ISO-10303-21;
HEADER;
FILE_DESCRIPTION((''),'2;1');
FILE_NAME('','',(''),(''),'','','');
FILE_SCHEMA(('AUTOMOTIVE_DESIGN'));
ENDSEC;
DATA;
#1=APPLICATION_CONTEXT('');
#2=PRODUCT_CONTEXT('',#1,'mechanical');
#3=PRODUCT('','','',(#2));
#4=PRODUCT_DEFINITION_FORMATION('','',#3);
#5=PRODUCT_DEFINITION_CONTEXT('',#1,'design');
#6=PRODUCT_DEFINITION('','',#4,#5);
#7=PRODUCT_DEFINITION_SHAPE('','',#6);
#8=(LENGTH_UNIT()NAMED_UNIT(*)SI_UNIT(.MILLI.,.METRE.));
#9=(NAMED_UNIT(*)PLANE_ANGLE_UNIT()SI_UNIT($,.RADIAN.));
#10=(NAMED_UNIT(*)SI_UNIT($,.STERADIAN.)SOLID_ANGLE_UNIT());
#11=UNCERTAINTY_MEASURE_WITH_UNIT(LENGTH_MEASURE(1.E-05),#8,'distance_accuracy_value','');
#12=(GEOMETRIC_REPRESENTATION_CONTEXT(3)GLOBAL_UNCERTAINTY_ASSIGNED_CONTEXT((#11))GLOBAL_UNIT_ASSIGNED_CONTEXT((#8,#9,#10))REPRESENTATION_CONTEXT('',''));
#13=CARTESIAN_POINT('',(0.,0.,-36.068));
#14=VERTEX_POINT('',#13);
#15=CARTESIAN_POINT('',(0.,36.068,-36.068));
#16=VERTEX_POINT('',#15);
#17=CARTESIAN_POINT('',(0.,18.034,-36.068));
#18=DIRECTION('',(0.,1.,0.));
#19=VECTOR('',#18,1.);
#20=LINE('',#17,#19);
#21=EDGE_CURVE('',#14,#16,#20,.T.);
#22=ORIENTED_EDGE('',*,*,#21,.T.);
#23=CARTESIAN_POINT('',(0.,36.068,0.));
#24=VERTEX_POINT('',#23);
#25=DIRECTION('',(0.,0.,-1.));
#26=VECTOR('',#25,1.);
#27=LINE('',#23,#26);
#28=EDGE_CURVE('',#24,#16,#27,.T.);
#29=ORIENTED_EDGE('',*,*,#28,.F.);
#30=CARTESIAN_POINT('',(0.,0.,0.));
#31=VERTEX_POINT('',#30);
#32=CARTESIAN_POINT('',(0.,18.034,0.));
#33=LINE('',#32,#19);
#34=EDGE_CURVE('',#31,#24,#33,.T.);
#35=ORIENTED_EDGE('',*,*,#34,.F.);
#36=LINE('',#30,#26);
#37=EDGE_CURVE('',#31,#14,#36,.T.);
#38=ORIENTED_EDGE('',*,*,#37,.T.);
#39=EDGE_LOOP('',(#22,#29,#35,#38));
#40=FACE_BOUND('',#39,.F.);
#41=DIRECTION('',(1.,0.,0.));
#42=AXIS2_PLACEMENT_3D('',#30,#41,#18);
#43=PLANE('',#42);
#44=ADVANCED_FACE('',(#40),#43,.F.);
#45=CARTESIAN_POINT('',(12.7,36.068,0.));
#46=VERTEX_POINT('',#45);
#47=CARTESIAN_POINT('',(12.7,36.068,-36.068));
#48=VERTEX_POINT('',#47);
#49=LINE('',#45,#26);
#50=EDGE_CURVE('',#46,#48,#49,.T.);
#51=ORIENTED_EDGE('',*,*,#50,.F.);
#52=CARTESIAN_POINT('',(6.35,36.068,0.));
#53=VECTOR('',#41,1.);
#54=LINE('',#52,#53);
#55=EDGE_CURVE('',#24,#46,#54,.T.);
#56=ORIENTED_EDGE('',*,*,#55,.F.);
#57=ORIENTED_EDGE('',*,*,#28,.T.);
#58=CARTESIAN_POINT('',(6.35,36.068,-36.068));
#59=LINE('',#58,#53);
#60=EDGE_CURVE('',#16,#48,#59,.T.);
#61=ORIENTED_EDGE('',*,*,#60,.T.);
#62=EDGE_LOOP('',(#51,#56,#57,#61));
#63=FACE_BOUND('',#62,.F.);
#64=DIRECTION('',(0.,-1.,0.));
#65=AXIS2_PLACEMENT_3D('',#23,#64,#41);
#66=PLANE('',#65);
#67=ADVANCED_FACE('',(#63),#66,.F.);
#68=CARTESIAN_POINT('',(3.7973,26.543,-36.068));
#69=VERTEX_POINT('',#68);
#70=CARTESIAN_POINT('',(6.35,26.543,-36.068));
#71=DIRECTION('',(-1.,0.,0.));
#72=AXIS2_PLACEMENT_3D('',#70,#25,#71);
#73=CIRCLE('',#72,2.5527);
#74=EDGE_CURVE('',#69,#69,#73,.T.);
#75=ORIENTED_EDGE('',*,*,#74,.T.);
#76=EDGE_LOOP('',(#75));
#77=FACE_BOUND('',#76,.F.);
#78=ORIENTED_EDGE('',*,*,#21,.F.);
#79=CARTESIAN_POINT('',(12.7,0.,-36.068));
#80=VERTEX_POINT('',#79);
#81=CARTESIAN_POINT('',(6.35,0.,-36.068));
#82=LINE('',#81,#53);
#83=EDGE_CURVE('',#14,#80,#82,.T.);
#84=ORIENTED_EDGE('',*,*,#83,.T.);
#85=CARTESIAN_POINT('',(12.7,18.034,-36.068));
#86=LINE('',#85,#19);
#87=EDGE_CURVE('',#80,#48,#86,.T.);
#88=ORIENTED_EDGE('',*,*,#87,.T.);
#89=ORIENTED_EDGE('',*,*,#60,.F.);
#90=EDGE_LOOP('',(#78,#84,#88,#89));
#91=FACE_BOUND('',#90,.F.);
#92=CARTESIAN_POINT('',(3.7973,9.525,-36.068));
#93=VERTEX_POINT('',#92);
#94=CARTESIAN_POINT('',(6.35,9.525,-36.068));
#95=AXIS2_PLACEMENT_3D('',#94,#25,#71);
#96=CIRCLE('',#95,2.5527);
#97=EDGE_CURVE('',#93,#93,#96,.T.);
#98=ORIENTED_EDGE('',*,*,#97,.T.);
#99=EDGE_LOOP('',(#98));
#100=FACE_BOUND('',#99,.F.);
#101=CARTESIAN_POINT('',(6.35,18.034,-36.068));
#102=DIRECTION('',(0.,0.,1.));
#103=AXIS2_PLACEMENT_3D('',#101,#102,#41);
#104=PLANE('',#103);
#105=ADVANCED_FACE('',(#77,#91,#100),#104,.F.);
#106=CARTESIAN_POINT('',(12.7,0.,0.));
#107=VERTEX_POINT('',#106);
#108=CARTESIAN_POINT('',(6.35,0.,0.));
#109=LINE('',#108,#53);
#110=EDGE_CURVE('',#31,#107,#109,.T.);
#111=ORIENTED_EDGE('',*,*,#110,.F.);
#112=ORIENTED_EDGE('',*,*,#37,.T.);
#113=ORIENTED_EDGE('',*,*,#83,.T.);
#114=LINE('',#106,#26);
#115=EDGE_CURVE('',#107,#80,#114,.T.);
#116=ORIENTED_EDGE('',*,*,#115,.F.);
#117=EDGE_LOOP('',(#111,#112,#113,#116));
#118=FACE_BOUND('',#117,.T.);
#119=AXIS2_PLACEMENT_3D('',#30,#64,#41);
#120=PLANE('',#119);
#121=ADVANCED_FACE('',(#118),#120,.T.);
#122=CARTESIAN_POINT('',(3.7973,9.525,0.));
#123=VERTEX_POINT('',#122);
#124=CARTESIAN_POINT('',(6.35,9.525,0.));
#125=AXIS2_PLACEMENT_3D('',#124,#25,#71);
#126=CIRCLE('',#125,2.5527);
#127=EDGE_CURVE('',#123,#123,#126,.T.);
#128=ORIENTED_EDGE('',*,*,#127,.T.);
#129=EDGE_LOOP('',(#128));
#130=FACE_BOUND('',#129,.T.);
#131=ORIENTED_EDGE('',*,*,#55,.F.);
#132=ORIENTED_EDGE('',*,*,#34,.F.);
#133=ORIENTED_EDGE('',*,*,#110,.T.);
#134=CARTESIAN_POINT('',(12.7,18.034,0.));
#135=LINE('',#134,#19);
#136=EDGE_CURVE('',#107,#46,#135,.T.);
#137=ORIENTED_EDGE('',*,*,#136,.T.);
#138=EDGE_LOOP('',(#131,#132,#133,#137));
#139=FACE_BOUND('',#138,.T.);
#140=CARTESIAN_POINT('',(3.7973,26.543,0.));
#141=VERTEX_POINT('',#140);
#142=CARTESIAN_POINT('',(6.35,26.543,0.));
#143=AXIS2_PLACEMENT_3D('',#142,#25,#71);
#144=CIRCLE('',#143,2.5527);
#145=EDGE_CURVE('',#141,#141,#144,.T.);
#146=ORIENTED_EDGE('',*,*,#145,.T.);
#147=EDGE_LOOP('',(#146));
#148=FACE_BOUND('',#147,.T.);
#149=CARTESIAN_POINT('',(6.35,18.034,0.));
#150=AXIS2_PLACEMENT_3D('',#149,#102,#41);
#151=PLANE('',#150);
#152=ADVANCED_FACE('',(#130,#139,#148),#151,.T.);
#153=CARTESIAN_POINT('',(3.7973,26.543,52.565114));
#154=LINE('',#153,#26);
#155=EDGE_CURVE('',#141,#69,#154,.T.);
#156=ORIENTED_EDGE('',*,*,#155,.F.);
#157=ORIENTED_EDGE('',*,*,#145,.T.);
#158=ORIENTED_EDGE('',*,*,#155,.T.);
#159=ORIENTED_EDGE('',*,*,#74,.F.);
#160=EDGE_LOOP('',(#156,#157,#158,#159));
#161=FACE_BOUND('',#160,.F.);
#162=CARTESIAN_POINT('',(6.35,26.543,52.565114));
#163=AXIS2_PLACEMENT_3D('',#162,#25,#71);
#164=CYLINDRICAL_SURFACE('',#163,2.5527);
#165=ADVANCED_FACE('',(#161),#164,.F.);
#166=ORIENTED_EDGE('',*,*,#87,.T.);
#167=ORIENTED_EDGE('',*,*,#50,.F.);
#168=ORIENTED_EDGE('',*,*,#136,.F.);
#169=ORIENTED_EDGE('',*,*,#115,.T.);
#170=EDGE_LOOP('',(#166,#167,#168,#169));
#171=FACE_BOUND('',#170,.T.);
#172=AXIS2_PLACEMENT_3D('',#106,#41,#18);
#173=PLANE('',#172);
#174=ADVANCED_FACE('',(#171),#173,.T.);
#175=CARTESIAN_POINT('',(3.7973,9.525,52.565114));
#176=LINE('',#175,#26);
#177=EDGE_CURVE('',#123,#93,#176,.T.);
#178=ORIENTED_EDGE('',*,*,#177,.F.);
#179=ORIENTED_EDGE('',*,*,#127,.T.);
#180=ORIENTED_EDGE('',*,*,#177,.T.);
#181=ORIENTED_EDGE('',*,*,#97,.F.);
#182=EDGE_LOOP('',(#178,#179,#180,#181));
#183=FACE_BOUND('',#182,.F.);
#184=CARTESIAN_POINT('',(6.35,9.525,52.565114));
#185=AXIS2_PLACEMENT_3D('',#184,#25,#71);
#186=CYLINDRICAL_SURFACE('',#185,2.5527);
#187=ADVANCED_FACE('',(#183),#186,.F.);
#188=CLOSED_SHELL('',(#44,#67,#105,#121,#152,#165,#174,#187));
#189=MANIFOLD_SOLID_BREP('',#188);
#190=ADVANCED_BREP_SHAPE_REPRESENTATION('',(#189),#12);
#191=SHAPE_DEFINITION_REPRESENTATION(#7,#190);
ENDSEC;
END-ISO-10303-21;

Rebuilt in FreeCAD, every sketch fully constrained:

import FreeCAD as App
import Part
import Sketcher
from FreeCAD import Vector
Q = App.Units.Quantity

doc = App.newDocument("Part")
body = doc.addObject("PartDesign::Body", "Body")

sketch1 = doc.addObject("Sketcher::SketchObject", "Sketch")
body.addObject(sketch1)
sketch1.AttachmentSupport = (doc.XY_Plane, [""])
sketch1.MapMode = "FlatFace"
sketch1.addGeometry([
    Part.LineSegment(Vector(0, 36, 0), Vector(0, 0, 0)),
    Part.LineSegment(Vector(0, 0, 0), Vector(13, 0, 0)),
    Part.LineSegment(Vector(13, 0, 0), Vector(13, 36, 0)),
    Part.LineSegment(Vector(13, 36, 0), Vector(0, 36, 0)),
], False)
sketch1.addConstraint([
    Sketcher.Constraint("Coincident", 0, 2, 1, 1),
    Sketcher.Constraint("Coincident", 1, 2, 2, 1),
    Sketcher.Constraint("Coincident", 2, 2, 3, 1),
    Sketcher.Constraint("Coincident", 3, 2, 0, 1),
    Sketcher.Constraint("Vertical", 0),
    Sketcher.Constraint("Horizontal", 1),
    Sketcher.Constraint("Vertical", 2),
    Sketcher.Constraint("Horizontal", 3),
    Sketcher.Constraint("Coincident", 0, 2, -1, 1),
    Sketcher.Constraint("DistanceX", 1, 1, 1, 2, Q("0.5 in")),
    Sketcher.Constraint("DistanceY", 0, 2, 0, 1, Q("1.42 in")),
])
pad1 = doc.addObject("PartDesign::Pad", "Pad")
body.addObject(pad1)
pad1.Profile = sketch1
pad1.Length = Q("1.42 in")
pad1.Reversed = True

sketch2 = doc.addObject("Sketcher::SketchObject", "Sketch001")
body.addObject(sketch2)
sketch2.AttachmentSupport = (doc.XY_Plane, [""])
sketch2.MapMode = "FlatFace"
sketch2.addGeometry([
    Part.Circle(Vector(6.3, 9.5, 0), Vector(0, 0, 1), 2.6),
    Part.Circle(Vector(6.3, 26.5, 0), Vector(0, 0, 1), 2.6),
], False)
sketch2.addConstraint([
    Sketcher.Constraint("Equal", 0, 1),
    Sketcher.Constraint("Vertical", 0, 3, 1, 3),
    Sketcher.Constraint("Diameter", 0, Q("0.201 in")),
    Sketcher.Constraint("DistanceX", -1, 1, 0, 3, Q("0.25 in")),
    Sketcher.Constraint("DistanceY", 0, 3, 1, 3, Q("0.67 in")),
    Sketcher.Constraint("DistanceY", -1, 1, 0, 3, Q("0.375 in")),
])
doc.recompute()
hole = doc.addObject("PartDesign::Hole", "Hole")
body.addObject(hole)
hole.Profile = sketch2
hole.ThreadType = "None"
hole.Diameter = Q("0.201 in")
hole.DepthType = "ThroughAll"

doc.recompute()
